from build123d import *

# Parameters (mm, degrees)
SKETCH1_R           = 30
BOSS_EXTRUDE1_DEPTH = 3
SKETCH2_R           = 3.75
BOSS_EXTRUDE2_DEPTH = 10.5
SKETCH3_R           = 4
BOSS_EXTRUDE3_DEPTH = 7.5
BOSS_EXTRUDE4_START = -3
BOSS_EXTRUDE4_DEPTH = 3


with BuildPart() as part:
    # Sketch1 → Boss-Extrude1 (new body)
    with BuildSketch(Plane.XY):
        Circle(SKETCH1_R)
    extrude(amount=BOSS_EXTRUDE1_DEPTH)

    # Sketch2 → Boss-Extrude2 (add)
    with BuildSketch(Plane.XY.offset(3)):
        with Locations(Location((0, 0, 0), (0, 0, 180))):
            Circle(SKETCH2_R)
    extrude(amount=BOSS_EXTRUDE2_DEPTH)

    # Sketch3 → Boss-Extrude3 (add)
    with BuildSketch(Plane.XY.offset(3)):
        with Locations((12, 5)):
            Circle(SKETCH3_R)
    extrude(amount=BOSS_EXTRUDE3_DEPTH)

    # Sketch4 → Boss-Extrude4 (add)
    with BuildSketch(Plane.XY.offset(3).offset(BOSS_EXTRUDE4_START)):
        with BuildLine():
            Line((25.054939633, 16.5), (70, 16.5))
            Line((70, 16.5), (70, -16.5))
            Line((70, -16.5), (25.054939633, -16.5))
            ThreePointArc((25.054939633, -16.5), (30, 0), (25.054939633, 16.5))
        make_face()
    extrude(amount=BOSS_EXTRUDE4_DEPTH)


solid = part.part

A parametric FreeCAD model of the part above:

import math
import FreeCAD as App
import Part
import Sketcher
from FreeCAD import Vector
Q = App.Units.Quantity

doc = App.newDocument("Part")
body = doc.addObject("PartDesign::Body", "Body")

sketch1 = body.newObject("Sketcher::SketchObject", "Sketch")
sketch1.AttachmentSupport = (doc.getObject("XY_Plane"), [""])
sketch1.MapMode = "FlatFace"
sketch1.addGeometry(Part.Circle(Vector(0, 0, 0), Vector(0, 0, 1), 30), False)
sketch1.addConstraint([
    Sketcher.Constraint("Coincident", 0, 3, -1, 1),
    Sketcher.Constraint("Diameter", 0, Q("60 mm")),
])
pad1 = body.newObject("PartDesign::Pad", "Pad")
pad1.Profile = sketch1
pad1.Length = 3

sketch2 = body.newObject("Sketcher::SketchObject", "Sketch001")
sketch2.AttachmentSupport = (doc.getObject("XY_Plane"), [""])
sketch2.MapMode = "FlatFace"
sketch2.AttachmentOffset = App.Placement(Vector(0, 0, 3), App.Rotation())
sketch2.addGeometry(Part.Circle(Vector(0, 0, 0), Vector(0, 0, 1), 3.75), False)
sketch2.addConstraint([
    Sketcher.Constraint("Coincident", 0, 3, -1, 1),
    Sketcher.Constraint("Diameter", 0, Q("7.5 mm")),
])
pad2 = body.newObject("PartDesign::Pad", "Pad001")
pad2.Profile = sketch2
pad2.Length = 10.5

sketch3 = body.newObject("Sketcher::SketchObject", "Sketch002")
sketch3.AttachmentSupport = (doc.getObject("XY_Plane"), [""])
sketch3.MapMode = "FlatFace"
sketch3.AttachmentOffset = App.Placement(Vector(0, 0, 3), App.Rotation())
sketch3.addGeometry(Part.Circle(Vector(12, 5, 0), Vector(0, 0, 1), 4), False)
sketch3.addConstraint([
    Sketcher.Constraint("Diameter", 0, Q("8 mm")),
    Sketcher.Constraint("DistanceX", -1, 1, 0, 3, Q("12 mm")),
    Sketcher.Constraint("DistanceY", -1, 1, 0, 3, Q("5 mm")),
])
pad3 = body.newObject("PartDesign::Pad", "Pad002")
pad3.Profile = sketch3
pad3.Length = 7.5

sketch4 = body.newObject("Sketcher::SketchObject", "Sketch003")
sketch4.AttachmentSupport = (doc.getObject("XY_Plane"), [""])
sketch4.MapMode = "FlatFace"
sketch4.addGeometry([
    Part.LineSegment(Vector(70, 16.5, 0), Vector(25.05494, 16.5, 0)),
    Part.ArcOfCircle(Part.Circle(Vector(0, 0, 0), Vector(0, 0, 1), 30), math.radians(-33.367013), math.radians(33.367013)),
    Part.LineSegment(Vector(25.05494, -16.5, 0), Vector(70, -16.5, 0)),
    Part.LineSegment(Vector(70, -16.5, 0), Vector(70, 16.5, 0)),
], False)
sketch4.addConstraint([
    Sketcher.Constraint("Coincident", 0, 2, 1, 2),
    Sketcher.Constraint("Coincident", 1, 1, 2, 1),
    Sketcher.Constraint("Coincident", 2, 2, 3, 1),
    Sketcher.Constraint("Coincident", 3, 2, 0, 1),
    Sketcher.Constraint("Horizontal", 0),
    Sketcher.Constraint("Horizontal", 2),
    Sketcher.Constraint("Vertical", 3),
    Sketcher.Constraint("Coincident", 1, 3, -1, 1),
    Sketcher.Constraint("Vertical", 0, 2, 1, 1),
    Sketcher.Constraint("Radius", 1, Q("30 mm")),
    Sketcher.Constraint("DistanceY", 3, 1, 3, 2, Q("33 mm")),
    Sketcher.Constraint("DistanceX", -1, 1, 2, 2, Q("70 mm")),
])
pad4 = body.newObject("PartDesign::Pad", "Pad003")
pad4.Profile = sketch4
pad4.Length = 3

doc.recompute()
